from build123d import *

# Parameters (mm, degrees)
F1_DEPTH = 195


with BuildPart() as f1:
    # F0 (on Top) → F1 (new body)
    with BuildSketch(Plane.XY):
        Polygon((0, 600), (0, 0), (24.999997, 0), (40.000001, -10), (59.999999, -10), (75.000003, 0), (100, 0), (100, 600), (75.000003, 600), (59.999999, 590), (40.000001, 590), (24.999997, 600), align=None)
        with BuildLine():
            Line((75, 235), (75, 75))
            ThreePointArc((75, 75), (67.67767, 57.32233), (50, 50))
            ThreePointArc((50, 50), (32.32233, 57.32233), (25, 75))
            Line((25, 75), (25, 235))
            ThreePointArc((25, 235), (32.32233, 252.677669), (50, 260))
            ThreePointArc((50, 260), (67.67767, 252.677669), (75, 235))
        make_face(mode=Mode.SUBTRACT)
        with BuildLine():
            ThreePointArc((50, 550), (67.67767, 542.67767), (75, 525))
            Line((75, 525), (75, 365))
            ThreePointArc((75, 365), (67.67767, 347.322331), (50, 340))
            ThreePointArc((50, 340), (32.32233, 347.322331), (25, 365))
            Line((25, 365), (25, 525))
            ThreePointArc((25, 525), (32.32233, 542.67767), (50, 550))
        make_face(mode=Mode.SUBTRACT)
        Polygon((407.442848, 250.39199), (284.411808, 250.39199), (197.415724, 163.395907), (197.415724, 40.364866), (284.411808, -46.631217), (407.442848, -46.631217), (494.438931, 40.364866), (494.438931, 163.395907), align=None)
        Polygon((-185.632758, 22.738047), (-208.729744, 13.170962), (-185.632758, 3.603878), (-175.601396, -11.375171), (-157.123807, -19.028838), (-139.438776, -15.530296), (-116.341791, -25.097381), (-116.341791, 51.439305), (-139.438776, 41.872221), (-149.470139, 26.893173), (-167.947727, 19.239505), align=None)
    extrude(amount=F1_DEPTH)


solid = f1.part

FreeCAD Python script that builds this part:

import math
import FreeCAD as App
import Part
import Sketcher
from FreeCAD import Vector
Q = App.Units.Quantity


def add_polygon(sketch, points):
    """Adds a closed chain of lines whose ends are joined by coincident constraints."""
    first, n = sketch.GeometryCount, len(points)
    for a, b in zip(points, points[1:] + points[:1]):
        sketch.addGeometry(Part.LineSegment(App.Vector(*a, 0), App.Vector(*b, 0)), False)
    for i in range(n):
        sketch.addConstraint(Sketcher.Constraint("Coincident", first + i, 2, first + (i + 1) % n, 1))

doc = App.newDocument("Part")
body = doc.addObject("PartDesign::Body", "Body")
body.AllowCompound = True

sketch1 = doc.addObject("Sketcher::SketchObject", "Sketch")
body.addObject(sketch1)
sketch1.AttachmentSupport = (doc.XY_Plane, [""])
sketch1.MapMode = "FlatFace"
add_polygon(sketch1, [(0, 600), (0, 0), (24.999997, 0), (40.000001, -10), (59.999999, -10), (75.000003, 0), (100, 0), (100, 600), (75.000003, 600), (59.999999, 590), (40.000001, 590), (24.999997, 600)])
sketch1.addGeometry(Part.ArcOfCircle(Part.Circle(Vector(50, 235, 0), Vector(0, 0, 1), 25), math.radians(0), math.radians(90)), False)
sketch1.addGeometry(Part.LineSegment(Vector(75, 235, 0), Vector(75, 75, 0)), False)
sketch1.addGeometry(Part.ArcOfCircle(Part.Circle(Vector(50.000002, 74.999998, 0), Vector(0, 0, 1), 24.999998), math.radians(-90.000004), math.radians(0.000004)), False)
sketch1.addGeometry(Part.ArcOfCircle(Part.Circle(Vector(49.999998, 74.999998, 0), Vector(0, 0, 1), 24.999998), math.radians(179.999996), math.radians(270.000004)), False)
sketch1.addGeometry(Part.LineSegment(Vector(25, 75, 0), Vector(25, 235, 0)), False)
sketch1.addGeometry(Part.ArcOfCircle(Part.Circle(Vector(50, 235, 0), Vector(0, 0, 1), 25), math.radians(90), math.radians(180)), False)
sketch1.addGeometry(Part.ArcOfCircle(Part.Circle(Vector(49.999998, 525.000002, 0), Vector(0, 0, 1), 24.999998), math.radians(89.999996), math.radians(180.000004)), False)
sketch1.addGeometry(Part.ArcOfCircle(Part.Circle(Vector(50.000002, 525.000002, 0), Vector(0, 0, 1), 24.999998), math.radians(-0.000004), math.radians(90.000004)), False)
sketch1.addGeometry(Part.LineSegment(Vector(75, 525, 0), Vector(75, 365, 0)), False)
sketch1.addGeometry(Part.ArcOfCircle(Part.Circle(Vector(50, 365, 0), Vector(0, 0, 1), 25), math.radians(-90), math.radians(0)), False)
sketch1.addGeometry(Part.ArcOfCircle(Part.Circle(Vector(50, 365, 0), Vector(0, 0, 1), 25), math.radians(-180), math.radians(-90)), False)
sketch1.addGeometry(Part.LineSegment(Vector(25, 365, 0), Vector(25, 525, 0)), False)
add_polygon(sketch1, [(407.442848, 250.39199), (284.411808, 250.39199), (197.415724, 163.395907), (197.415724, 40.364866), (284.411808, -46.631217), (407.442848, -46.631217), (494.438931, 40.364866), (494.438931, 163.395907)])
add_polygon(sketch1, [(-185.632758, 22.738047), (-208.729744, 13.170962), (-185.632758, 3.603878), (-175.601396, -11.375171), (-157.123807, -19.028838), (-139.438776, -15.530296), (-116.341791, -25.097381), (-116.341791, 51.439305), (-139.438776, 41.872221), (-149.470139, 26.893173), (-167.947727, 19.239505)])
sketch1.addConstraint(Sketcher.Constraint("Coincident", 12, 1, 13, 1))
sketch1.addConstraint(Sketcher.Constraint("Coincident", 13, 2, 14, 2))
sketch1.addConstraint(Sketcher.Constraint("Coincident", 14, 1, 15, 2))
sketch1.addConstraint(Sketcher.Constraint("Coincident", 15, 1, 16, 1))
sketch1.addConstraint(Sketcher.Constraint("Coincident", 16, 2, 17, 2))
sketch1.addConstraint(Sketcher.Constraint("Coincident", 17, 1, 12, 2))
sketch1.addConstraint(Sketcher.Constraint("Coincident", 18, 1, 19, 2))
sketch1.addConstraint(Sketcher.Constraint("Coincident", 19, 1, 20, 1))
sketch1.addConstraint(Sketcher.Constraint("Coincident", 20, 2, 21, 2))
sketch1.addConstraint(Sketcher.Constraint("Coincident", 21, 1, 22, 2))
sketch1.addConstraint(Sketcher.Constraint("Coincident", 22, 1, 23, 1))
sketch1.addConstraint(Sketcher.Constraint("Coincident", 23, 2, 18, 2))
sketch1.addConstraint(Sketcher.Constraint("Vertical", 0))
sketch1.addConstraint(Sketcher.Constraint("Horizontal", 1))
sketch1.addConstraint(Sketcher.Constraint("Horizontal", 3))
sketch1.addConstraint(Sketcher.Constraint("Horizontal", 5))
sketch1.addConstraint(Sketcher.Constraint("Vertical", 6))
sketch1.addConstraint(Sketcher.Constraint("Horizontal", 7))
sketch1.addConstraint(Sketcher.Constraint("Horizontal", 9))
sketch1.addConstraint(Sketcher.Constraint("Horizontal", 11))
sketch1.addConstraint(Sketcher.Constraint("Vertical", 13))
sketch1.addConstraint(Sketcher.Constraint("Vertical", 16))
sketch1.addConstraint(Sketcher.Constraint("Vertical", 20))
sketch1.addConstraint(Sketcher.Constraint("Vertical", 23))
sketch1.addConstraint(Sketcher.Constraint("Horizontal", 24))
sketch1.addConstraint(Sketcher.Constraint("Vertical", 26))
sketch1.addConstraint(Sketcher.Constraint("Horizontal", 28))
sketch1.addConstraint(Sketcher.Constraint("Vertical", 30))
sketch1.addConstraint(Sketcher.Constraint("Vertical", 38))
sketch1.addConstraint(Sketcher.Constraint("Coincident", 0, 2, -1, 1))
sketch1.addConstraint(Sketcher.Constraint("Coincident", 15, 3, 14, 3))
sketch1.addConstraint(Sketcher.Constraint("Coincident", 17, 3, 12, 3))
sketch1.addConstraint(Sketcher.Constraint("Coincident", 19, 3, 18, 3))
sketch1.addConstraint(Sketcher.Constraint("Coincident", 22, 3, 21, 3))
sketch1.addConstraint(Sketcher.Constraint("PointOnObject", 4, 2, -1))
sketch1.addConstraint(Sketcher.Constraint("Radius", 12, Q("25 mm")))
sketch1.addConstraint(Sketcher.Constraint("Radius", 18, Q("24.999998 mm")))
sketch1.addConstraint(Sketcher.Constraint("DistanceX", 3, 1, 3, 2, Q("19.999998 mm")))
sketch1.addConstraint(Sketcher.Constraint("DistanceX", 9, 2, 9, 1, Q("19.999998 mm")))
sketch1.addConstraint(Sketcher.Constraint("DistanceY", 0, 2, 0, 1, Q("600 mm")))
sketch1.addConstraint(Sketcher.Constraint("DistanceY", 6, 1, 6, 2, Q("600 mm")))
sketch1.addConstraint(Sketcher.Constraint("DistanceY", 13, 2, 13, 1, Q("160 mm")))
sketch1.addConstraint(Sketcher.Constraint("DistanceY", 16, 1, 16, 2, Q("160 mm")))
sketch1.addConstraint(Sketcher.Constraint("DistanceY", 20, 2, 20, 1, Q("160 mm")))
sketch1.addConstraint(Sketcher.Constraint("DistanceY", 23, 1, 23, 2, Q("160 mm")))
sketch1.addConstraint(Sketcher.Constraint("DistanceX", -1, 1, 12, 3, Q("50 mm")))
sketch1.addConstraint(Sketcher.Constraint("DistanceY", -1, 1, 12, 3, Q("235 mm")))
sketch1.addConstraint(Sketcher.Constraint("DistanceY", -1, 1, 14, 3, Q("74.999998 mm")))
sketch1.addConstraint(Sketcher.Constraint("DistanceX", -1, 1, 18, 3, Q("49.999998 mm")))
sketch1.addConstraint(Sketcher.Constraint("DistanceY", -1, 1, 18, 3, Q("525.000002 mm")))
sketch1.addConstraint(Sketcher.Constraint("DistanceY", -1, 1, 21, 3, Q("365 mm")))
sketch1.addConstraint(Sketcher.Constraint("DistanceX", -1, 1, 2, 2, Q("40.000001 mm")))
sketch1.addConstraint(Sketcher.Constraint("DistanceY", 2, 2, -1, 1, Q("10 mm")))
sketch1.addConstraint(Sketcher.Constraint("DistanceX", -1, 1, 5, 2, Q("100 mm")))
sketch1.addConstraint(Sketcher.Constraint("DistanceX", -1, 1, 8, 2, Q("59.999999 mm")))
sketch1.addConstraint(Sketcher.Constraint("DistanceY", -1, 1, 8, 2, Q("590 mm")))
sketch1.addConstraint(Sketcher.Constraint("DistanceY", -1, 1, 12, 1, Q("235 mm")))
sketch1.addConstraint(Sketcher.Constraint("DistanceX", -1, 1, 14, 1, Q("50 mm")))
sketch1.addConstraint(Sketcher.Constraint("DistanceY", -1, 1, 15, 1, Q("75 mm")))
sketch1.addConstraint(Sketcher.Constraint("DistanceX", -1, 1, 17, 1, Q("50 mm")))
sketch1.addConstraint(Sketcher.Constraint("DistanceX", -1, 1, 18, 1, Q("50 mm")))
sketch1.addConstraint(Sketcher.Constraint("DistanceY", -1, 1, 19, 1, Q("525 mm")))
sketch1.addConstraint(Sketcher.Constraint("DistanceX", -1, 1, 21, 1, Q("50 mm")))
sketch1.addConstraint(Sketcher.Constraint("DistanceY", -1, 1, 22, 1, Q("365 mm")))
sketch1.addConstraint(Sketcher.Constraint("DistanceX", 1, 2, 15, 3, Q("25.000001 mm")))
sketch1.addConstraint(Sketcher.Constraint("DistanceX", 14, 3, 4, 2, Q("25.000001 mm")))
sketch1.addConstraint(Sketcher.Constraint("DistanceX", 19, 3, 7, 2, Q("25.000001 mm")))
sketch1.addConstraint(Sketcher.Constraint("DistanceX", 10, 2, 18, 3, Q("25.000001 mm")))
sketch1.addConstraint(Sketcher.Constraint("DistanceX", 24, 2, 24, 1, Q("123.03104 mm")))
sketch1.addConstraint(Sketcher.Constraint("DistanceX", 28, 1, 28, 2, Q("123.03104 mm")))
sketch1.addConstraint(Sketcher.Constraint("DistanceY", 26, 2, 26, 1, Q("123.031041 mm")))
sketch1.addConstraint(Sketcher.Constraint("DistanceY", 30, 1, 30, 2, Q("123.031041 mm")))
sketch1.addConstraint(Sketcher.Constraint("DistanceY", 35, 2, 32, 2, Q("32.1998 mm")))
sketch1.addConstraint(Sketcher.Constraint("DistanceY", 36, 2, 38, 2, Q("66.969601 mm")))
sketch1.addConstraint(Sketcher.Constraint("Distance", 25, Q("123.031041 mm")))
sketch1.addConstraint(Sketcher.Constraint("Distance", 27, Q("123.031041 mm")))
sketch1.addConstraint(Sketcher.Constraint("Distance", 29, Q("123.03104 mm")))
sketch1.addConstraint(Sketcher.Constraint("Distance", 31, Q("123.03104 mm")))
sketch1.addConstraint(Sketcher.Constraint("Distance", 34, Q("18.02776 mm")))
sketch1.addConstraint(Sketcher.Constraint("Distance", 36, Q("18.02776 mm")))
sketch1.addConstraint(Sketcher.Constraint("Distance", 40, Q("18.02776 mm")))
sketch1.addConstraint(Sketcher.Constraint("Distance", 42, Q("18.02776 mm")))
sketch1.addConstraint(Sketcher.Constraint("DistanceY", 38, 1, 38, 2, Q("76.536686 mm")))
sketch1.addConstraint(Sketcher.Constraint("DistanceX", -1, 1, 24, 2, Q("284.411808 mm")))
sketch1.addConstraint(Sketcher.Constraint("DistanceY", -1, 1, 24, 2, Q("250.39199 mm")))
sketch1.addConstraint(Sketcher.Constraint("DistanceX", -1, 1, 27, 2, Q("284.411808 mm")))
sketch1.addConstraint(Sketcher.Constraint("DistanceX", -1, 1, 29, 2, Q("494.438931 mm")))
sketch1.addConstraint(Sketcher.Constraint("DistanceX", 33, 2, -1, 1, Q("185.632758 mm")))
sketch1.addConstraint(Sketcher.Constraint("DistanceY", 34, 2, -1, 1, Q("11.375171 mm")))
sketch1.addConstraint(Sketcher.Constraint("DistanceY", 35, 2, -1, 1, Q("19.028838 mm")))
sketch1.addConstraint(Sketcher.Constraint("DistanceX", 37, 2, -1, 1, Q("116.341791 mm")))
sketch1.addConstraint(Sketcher.Constraint("DistanceY", 37, 2, -1, 1, Q("25.097381 mm")))
sketch1.addConstraint(Sketcher.Constraint("DistanceY", -1, 1, 39, 2, Q("41.872221 mm")))
sketch1.addConstraint(Sketcher.Constraint("DistanceX", 40, 2, -1, 1, Q("149.470139 mm")))
sketch1.addConstraint(Sketcher.Constraint("DistanceX", 42, 2, -1, 1, Q("185.632758 mm")))
sketch1.addConstraint(Sketcher.Constraint("DistanceX", 32, 2, 1, 2, Q("233.729741 mm")))
sketch1.addConstraint(Sketcher.Constraint("DistanceY", 34, 2, 33, 2, Q("14.979049 mm")))
sketch1.addConstraint(Sketcher.Constraint("DistanceX", 34, 2, 35, 2, Q("18.477589 mm")))
sketch1.addConstraint(Sketcher.Constraint("DistanceX", 35, 2, 39, 2, Q("17.685031 mm")))
sketch1.addConstraint(Sketcher.Constraint("DistanceX", 33, 2, 41, 2, Q("17.685031 mm")))
sketch1.addConstraint(Sketcher.Constraint("DistanceY", 33, 2, 42, 2, Q("19.134169 mm")))
pad1 = doc.addObject("PartDesign::Pad", "Pad")
body.addObject(pad1)
pad1.Profile = sketch1
pad1.Length = 195

doc.recompute()
